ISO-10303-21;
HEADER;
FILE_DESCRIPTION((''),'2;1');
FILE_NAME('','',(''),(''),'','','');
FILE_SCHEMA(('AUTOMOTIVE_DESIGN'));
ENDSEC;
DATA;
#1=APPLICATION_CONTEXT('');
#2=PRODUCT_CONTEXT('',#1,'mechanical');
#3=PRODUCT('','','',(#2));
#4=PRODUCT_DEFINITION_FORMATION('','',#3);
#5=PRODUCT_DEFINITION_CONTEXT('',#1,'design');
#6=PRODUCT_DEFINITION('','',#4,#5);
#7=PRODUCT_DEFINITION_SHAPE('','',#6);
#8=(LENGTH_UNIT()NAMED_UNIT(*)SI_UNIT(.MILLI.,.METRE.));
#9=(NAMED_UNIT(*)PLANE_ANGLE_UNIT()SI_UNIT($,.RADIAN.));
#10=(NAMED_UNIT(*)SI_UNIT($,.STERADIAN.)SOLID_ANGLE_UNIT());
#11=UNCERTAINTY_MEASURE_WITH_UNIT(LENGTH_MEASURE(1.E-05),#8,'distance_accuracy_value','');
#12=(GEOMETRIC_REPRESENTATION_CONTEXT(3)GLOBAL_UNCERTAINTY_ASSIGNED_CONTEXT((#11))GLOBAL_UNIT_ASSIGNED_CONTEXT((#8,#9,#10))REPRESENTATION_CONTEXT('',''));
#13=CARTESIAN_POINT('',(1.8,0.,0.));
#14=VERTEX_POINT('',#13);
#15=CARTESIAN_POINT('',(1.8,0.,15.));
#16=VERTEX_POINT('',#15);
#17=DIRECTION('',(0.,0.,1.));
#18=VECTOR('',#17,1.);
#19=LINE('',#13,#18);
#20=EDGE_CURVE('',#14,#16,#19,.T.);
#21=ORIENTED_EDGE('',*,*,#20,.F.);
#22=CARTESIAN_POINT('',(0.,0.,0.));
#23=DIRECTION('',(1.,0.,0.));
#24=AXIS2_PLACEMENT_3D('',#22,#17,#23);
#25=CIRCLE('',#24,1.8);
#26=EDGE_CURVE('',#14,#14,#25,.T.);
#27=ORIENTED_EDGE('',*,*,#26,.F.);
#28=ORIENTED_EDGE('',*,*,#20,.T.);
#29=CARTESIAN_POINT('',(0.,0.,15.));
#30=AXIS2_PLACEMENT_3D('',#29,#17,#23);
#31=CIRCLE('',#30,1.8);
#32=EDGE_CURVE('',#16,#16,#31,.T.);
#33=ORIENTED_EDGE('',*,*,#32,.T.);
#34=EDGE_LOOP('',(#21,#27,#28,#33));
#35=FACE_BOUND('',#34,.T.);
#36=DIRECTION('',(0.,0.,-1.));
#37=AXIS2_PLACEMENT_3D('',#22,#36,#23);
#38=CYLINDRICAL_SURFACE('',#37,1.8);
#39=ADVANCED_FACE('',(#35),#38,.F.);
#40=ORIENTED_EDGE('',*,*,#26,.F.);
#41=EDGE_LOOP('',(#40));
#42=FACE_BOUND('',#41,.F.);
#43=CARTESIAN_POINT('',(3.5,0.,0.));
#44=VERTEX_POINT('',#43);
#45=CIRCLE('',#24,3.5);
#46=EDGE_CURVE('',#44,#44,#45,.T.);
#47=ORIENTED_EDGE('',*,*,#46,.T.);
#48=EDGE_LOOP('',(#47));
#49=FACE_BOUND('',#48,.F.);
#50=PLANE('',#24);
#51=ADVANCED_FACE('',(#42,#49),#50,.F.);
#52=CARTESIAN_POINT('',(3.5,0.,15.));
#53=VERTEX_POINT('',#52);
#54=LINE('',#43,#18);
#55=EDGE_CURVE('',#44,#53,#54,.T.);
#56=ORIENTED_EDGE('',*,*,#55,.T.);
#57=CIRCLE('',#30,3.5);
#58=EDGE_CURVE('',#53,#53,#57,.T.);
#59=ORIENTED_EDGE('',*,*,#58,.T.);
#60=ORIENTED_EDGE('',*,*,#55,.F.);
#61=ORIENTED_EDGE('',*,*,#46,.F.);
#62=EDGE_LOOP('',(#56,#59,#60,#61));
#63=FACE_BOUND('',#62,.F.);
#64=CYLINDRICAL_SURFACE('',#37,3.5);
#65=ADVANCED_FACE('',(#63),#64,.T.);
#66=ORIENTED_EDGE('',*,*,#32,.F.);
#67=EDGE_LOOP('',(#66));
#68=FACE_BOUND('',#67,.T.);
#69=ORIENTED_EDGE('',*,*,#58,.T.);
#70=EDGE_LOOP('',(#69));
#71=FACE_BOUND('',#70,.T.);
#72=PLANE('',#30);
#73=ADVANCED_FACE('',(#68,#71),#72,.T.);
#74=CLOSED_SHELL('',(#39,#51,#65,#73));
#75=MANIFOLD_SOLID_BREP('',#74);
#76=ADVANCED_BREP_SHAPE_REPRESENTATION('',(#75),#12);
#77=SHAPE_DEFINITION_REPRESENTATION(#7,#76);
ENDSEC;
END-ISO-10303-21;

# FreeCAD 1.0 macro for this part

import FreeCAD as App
import Part
import Sketcher

doc = App.newDocument("Part")
body = doc.addObject("PartDesign::Body", "Body")

# Sketch on XY plane
sketch1 = doc.addObject("Sketcher::SketchObject", "Sketch")
body.addObject(sketch1)
sketch1.AttachmentSupport = (doc.XY_Plane, [""])
sketch1.MapMode = "FlatFace"
sketch1.addGeometry([
    Part.Circle(App.Vector(0, 0, 0), App.Vector(0, 0, 1), 3.5),
    Part.Circle(App.Vector(0, 0, 0), App.Vector(0, 0, 1), 1.8),
], False)
sketch1.addConstraint([
    Sketcher.Constraint("Coincident", 0, 3, -1, 1),
    Sketcher.Constraint("Coincident", 1, 3, -1, 1),
    Sketcher.Constraint("Diameter", 0, 7.0),
    Sketcher.Constraint("Diameter", 1, 3.6),
])
pad1 = doc.addObject("PartDesign::Pad", "Pad")
body.addObject(pad1)
pad1.Profile = sketch1
pad1.Length = 15

doc.recompute()
